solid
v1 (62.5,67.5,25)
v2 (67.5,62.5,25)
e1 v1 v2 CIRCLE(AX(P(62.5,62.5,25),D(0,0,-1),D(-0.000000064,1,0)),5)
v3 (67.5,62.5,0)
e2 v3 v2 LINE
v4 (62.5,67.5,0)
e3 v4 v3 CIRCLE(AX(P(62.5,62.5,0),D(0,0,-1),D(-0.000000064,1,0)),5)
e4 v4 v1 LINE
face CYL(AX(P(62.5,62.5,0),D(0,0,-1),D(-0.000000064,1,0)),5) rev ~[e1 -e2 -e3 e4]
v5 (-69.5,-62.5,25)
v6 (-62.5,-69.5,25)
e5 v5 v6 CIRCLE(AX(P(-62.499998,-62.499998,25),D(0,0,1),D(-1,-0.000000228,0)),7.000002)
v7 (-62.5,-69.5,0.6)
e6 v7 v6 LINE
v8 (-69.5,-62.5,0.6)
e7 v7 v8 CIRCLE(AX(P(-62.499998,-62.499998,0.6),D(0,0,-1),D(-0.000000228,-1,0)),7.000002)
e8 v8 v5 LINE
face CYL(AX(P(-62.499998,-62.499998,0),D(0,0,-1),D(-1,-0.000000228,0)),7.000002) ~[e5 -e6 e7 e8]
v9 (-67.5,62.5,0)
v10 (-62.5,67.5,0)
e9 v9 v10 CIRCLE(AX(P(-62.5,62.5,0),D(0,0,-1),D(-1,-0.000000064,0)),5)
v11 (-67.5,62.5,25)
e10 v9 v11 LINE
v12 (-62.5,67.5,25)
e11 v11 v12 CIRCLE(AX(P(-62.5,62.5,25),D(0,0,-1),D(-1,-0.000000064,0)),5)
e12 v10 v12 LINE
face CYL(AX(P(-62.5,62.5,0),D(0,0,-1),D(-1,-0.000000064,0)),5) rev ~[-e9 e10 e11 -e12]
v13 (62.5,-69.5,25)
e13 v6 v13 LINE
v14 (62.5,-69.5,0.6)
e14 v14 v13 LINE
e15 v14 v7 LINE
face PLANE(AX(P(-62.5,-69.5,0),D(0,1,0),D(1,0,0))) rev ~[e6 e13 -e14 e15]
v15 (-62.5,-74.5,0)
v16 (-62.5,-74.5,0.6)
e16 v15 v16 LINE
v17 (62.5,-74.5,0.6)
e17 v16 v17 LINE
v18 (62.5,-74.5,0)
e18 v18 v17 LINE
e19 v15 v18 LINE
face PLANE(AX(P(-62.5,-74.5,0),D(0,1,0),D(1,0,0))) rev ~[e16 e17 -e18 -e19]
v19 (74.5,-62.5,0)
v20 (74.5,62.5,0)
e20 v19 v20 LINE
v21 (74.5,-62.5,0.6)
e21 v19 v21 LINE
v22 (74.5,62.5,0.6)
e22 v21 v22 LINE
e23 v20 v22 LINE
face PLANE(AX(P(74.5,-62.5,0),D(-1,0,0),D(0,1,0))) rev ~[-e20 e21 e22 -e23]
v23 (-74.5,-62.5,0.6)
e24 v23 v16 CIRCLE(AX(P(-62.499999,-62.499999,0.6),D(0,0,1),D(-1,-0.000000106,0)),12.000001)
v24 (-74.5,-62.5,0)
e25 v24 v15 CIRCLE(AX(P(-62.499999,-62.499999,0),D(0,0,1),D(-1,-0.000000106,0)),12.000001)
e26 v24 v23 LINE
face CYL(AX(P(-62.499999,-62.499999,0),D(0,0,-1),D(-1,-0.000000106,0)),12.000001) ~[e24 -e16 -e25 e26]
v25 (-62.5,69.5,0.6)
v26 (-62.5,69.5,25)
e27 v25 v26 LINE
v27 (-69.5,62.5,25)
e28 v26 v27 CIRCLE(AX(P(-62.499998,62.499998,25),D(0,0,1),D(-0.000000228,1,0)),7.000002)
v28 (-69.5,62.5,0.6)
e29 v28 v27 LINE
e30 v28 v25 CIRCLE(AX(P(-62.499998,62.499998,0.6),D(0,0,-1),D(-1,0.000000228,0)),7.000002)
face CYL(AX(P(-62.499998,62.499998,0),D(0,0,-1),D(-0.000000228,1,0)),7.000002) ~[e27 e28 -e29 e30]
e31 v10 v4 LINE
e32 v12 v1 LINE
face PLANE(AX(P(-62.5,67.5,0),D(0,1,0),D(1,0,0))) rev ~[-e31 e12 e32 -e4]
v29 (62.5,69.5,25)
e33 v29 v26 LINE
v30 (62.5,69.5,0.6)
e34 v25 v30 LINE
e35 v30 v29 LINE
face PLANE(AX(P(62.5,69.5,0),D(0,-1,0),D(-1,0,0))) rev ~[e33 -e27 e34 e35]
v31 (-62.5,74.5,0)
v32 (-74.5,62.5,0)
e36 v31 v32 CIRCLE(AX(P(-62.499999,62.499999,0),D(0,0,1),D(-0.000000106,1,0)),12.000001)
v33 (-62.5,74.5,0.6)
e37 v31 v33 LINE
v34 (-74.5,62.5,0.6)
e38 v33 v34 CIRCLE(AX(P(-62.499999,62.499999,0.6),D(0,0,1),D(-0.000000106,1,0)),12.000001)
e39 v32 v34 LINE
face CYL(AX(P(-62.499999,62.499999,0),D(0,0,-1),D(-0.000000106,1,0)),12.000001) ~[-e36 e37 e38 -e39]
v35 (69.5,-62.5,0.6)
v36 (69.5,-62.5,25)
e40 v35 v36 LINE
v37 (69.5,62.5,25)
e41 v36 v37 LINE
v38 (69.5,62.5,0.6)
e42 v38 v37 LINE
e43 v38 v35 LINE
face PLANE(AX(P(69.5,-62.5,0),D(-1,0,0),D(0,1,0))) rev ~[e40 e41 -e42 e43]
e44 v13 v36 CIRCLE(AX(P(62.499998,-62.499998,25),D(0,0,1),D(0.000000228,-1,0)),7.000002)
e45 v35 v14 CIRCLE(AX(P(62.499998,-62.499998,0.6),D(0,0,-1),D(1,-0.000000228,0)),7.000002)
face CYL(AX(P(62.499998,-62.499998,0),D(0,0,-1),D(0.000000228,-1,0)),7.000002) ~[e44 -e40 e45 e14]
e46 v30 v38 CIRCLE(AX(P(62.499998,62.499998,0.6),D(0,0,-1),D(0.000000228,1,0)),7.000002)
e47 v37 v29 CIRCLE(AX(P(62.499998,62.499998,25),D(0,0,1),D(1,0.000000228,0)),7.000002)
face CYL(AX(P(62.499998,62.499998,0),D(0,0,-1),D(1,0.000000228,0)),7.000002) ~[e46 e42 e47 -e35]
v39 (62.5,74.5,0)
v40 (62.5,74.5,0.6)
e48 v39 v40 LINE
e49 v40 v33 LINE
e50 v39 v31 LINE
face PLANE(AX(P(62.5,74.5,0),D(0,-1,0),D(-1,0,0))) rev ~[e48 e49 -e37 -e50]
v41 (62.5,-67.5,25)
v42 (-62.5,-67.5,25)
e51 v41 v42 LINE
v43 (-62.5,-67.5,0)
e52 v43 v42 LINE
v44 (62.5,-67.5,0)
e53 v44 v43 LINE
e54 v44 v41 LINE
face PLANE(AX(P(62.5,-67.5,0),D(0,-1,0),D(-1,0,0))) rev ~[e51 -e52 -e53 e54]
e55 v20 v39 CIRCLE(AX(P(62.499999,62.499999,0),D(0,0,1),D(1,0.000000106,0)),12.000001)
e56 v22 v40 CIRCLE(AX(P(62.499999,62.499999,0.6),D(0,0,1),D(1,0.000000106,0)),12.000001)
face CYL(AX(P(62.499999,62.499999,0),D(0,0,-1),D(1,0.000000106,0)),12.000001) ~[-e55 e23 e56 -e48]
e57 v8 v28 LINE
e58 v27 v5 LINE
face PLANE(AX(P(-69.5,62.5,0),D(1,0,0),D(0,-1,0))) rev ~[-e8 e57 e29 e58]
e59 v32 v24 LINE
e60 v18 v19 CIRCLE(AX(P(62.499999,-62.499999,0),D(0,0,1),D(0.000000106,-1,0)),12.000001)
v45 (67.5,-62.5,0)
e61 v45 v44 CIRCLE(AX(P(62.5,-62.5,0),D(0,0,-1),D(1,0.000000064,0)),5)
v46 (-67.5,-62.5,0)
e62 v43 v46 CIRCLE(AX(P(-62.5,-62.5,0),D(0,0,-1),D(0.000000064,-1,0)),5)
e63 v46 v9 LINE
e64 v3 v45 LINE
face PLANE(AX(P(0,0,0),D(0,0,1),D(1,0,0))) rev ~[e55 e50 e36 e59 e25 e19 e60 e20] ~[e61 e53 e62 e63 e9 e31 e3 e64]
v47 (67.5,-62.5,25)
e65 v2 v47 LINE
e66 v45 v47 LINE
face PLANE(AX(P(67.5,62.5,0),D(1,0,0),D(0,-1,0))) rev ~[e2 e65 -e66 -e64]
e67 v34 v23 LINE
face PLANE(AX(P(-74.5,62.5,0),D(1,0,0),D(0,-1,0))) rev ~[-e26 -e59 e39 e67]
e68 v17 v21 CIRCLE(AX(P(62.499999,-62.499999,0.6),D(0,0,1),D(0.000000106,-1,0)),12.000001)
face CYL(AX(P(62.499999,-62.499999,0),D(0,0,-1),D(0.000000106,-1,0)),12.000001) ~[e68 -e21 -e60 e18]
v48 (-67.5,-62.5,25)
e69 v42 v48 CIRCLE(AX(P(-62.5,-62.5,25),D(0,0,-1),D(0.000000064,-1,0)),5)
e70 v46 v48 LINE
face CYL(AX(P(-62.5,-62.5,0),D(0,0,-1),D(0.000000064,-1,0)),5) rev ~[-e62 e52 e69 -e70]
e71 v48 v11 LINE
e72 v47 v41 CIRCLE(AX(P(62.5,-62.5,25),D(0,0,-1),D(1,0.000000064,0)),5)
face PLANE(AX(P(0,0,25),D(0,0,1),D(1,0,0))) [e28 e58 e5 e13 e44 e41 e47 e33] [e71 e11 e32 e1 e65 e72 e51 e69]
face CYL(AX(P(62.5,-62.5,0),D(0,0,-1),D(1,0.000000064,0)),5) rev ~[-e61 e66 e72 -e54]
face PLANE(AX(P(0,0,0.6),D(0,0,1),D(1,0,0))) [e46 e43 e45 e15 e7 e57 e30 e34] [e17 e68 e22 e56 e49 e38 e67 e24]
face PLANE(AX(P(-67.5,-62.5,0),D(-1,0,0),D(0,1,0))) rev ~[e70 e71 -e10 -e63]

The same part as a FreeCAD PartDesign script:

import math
import FreeCAD as App
import Part
import Sketcher

doc = App.newDocument("Part")
params = doc.addObject("Spreadsheet::Sheet", "Params")
for row, (alias, value) in enumerate([
    ("sketch1_radius", "7.000002 mm"),
    ("sketch1_radius2", "5 mm"),
    ("sketch1_width", "125 mm"),
    ("pad1_length", "25 mm"),
    ("sketch2_radius", "12.000001 mm"),
    ("sketch2_radius2", "7.000002 mm"),
    ("sketch2_width", "125 mm"),
    ("pad2_length", "0.6 mm"),
], start=1):
    params.set(f"A{row}", alias)
    params.set(f"B{row}", "=" + value)
    params.setAlias(f"B{row}", alias)

body = doc.addObject("PartDesign::Body", "Body")

# Sketch on XY plane
sketch1 = body.newObject("Sketcher::SketchObject", "Sketch")
sketch1.AttachmentSupport = (doc.getObject("XY_Plane"), [""])
sketch1.MapMode = "FlatFace"
sketch1.addGeometry(Part.LineSegment(App.Vector(69.5, -62.5, 0), App.Vector(69.5, 62.5, 0)), False)
sketch1.addGeometry(Part.ArcOfCircle(Part.Circle(App.Vector(62.5, 62.5, 0), App.Vector(0, 0, 1), 7), math.radians(0), math.radians(90)), False)
sketch1.addGeometry(Part.LineSegment(App.Vector(62.5, 69.5, 0), App.Vector(-62.5, 69.5, 0)), False)
sketch1.addGeometry(Part.ArcOfCircle(Part.Circle(App.Vector(-62.5, 62.5, 0), App.Vector(0, 0, 1), 7), math.radians(90), math.radians(180)), False)
sketch1.addGeometry(Part.LineSegment(App.Vector(-69.5, 62.5, 0), App.Vector(-69.5, -62.5, 0)), False)
sketch1.addGeometry(Part.ArcOfCircle(Part.Circle(App.Vector(-62.5, -62.5, 0), App.Vector(0, 0, 1), 7), math.radians(-180), math.radians(-90)), False)
sketch1.addGeometry(Part.LineSegment(App.Vector(-62.5, -69.5, 0), App.Vector(62.5, -69.5, 0)), False)
sketch1.addGeometry(Part.ArcOfCircle(Part.Circle(App.Vector(62.5, -62.5, 0), App.Vector(0, 0, 1), 7), math.radians(-90), math.radians(0)), False)
sketch1.addGeometry(Part.ArcOfCircle(Part.Circle(App.Vector(-62.5, 62.5, 0), App.Vector(0, 0, 1), 5), math.radians(90), math.radians(180)), False)
sketch1.addGeometry(Part.LineSegment(App.Vector(-62.5, 67.5, 0), App.Vector(62.5, 67.5, 0)), False)
sketch1.addGeometry(Part.ArcOfCircle(Part.Circle(App.Vector(62.5, 62.5, 0), App.Vector(0, 0, 1), 5), math.radians(0), math.radians(90)), False)
sketch1.addGeometry(Part.LineSegment(App.Vector(67.5, 62.5, 0), App.Vector(67.5, -62.5, 0)), False)
sketch1.addGeometry(Part.ArcOfCircle(Part.Circle(App.Vector(62.5, -62.5, 0), App.Vector(0, 0, 1), 5), math.radians(-90), math.radians(0)), False)
sketch1.addGeometry(Part.LineSegment(App.Vector(62.5, -67.5, 0), App.Vector(-62.5, -67.5, 0)), False)
sketch1.addGeometry(Part.ArcOfCircle(Part.Circle(App.Vector(-62.5, -62.5, 0), App.Vector(0, 0, 1), 5), math.radians(180), math.radians(270)), False)
sketch1.addGeometry(Part.LineSegment(App.Vector(-67.5, -62.5, 0), App.Vector(-67.5, 62.5, 0)), False)
sketch1.addConstraint(Sketcher.Constraint("Tangent", 0, 2, 1, 1))
sketch1.addConstraint(Sketcher.Constraint("Tangent", 1, 2, 2, 1))
sketch1.addConstraint(Sketcher.Constraint("Tangent", 2, 2, 3, 1))
sketch1.addConstraint(Sketcher.Constraint("Tangent", 3, 2, 4, 1))
sketch1.addConstraint(Sketcher.Constraint("Tangent", 4, 2, 5, 1))
sketch1.addConstraint(Sketcher.Constraint("Tangent", 5, 2, 6, 1))
sketch1.addConstraint(Sketcher.Constraint("Tangent", 6, 2, 7, 1))
sketch1.addConstraint(Sketcher.Constraint("Tangent", 7, 2, 0, 1))
sketch1.addConstraint(Sketcher.Constraint("Tangent", 8, 1, 9, 1))
sketch1.addConstraint(Sketcher.Constraint("Tangent", 9, 2, 10, 2))
sketch1.addConstraint(Sketcher.Constraint("Tangent", 10, 1, 11, 1))
sketch1.addConstraint(Sketcher.Constraint("Tangent", 11, 2, 12, 2))
sketch1.addConstraint(Sketcher.Constraint("Tangent", 12, 1, 13, 1))
sketch1.addConstraint(Sketcher.Constraint("Tangent", 13, 2, 14, 2))
sketch1.addConstraint(Sketcher.Constraint("Tangent", 14, 1, 15, 1))
sketch1.addConstraint(Sketcher.Constraint("Tangent", 15, 2, 8, 2))
sketch1.addConstraint(Sketcher.Constraint("Vertical", 0))
sketch1.addConstraint(Sketcher.Constraint("Horizontal", 2))
sketch1.addConstraint(Sketcher.Constraint("Vertical", 4))
sketch1.addConstraint(Sketcher.Constraint("Horizontal", 6))
sketch1.addConstraint(Sketcher.Constraint("Horizontal", 9))
sketch1.addConstraint(Sketcher.Constraint("Vertical", 11))
sketch1.addConstraint(Sketcher.Constraint("Horizontal", 13))
sketch1.addConstraint(Sketcher.Constraint("Vertical", 15))
sketch1.addConstraint(Sketcher.Constraint("Coincident", 8, 3, 3, 3))
sketch1.addConstraint(Sketcher.Constraint("Coincident", 10, 3, 1, 3))
sketch1.addConstraint(Sketcher.Constraint("Coincident", 12, 3, 7, 3))
sketch1.addConstraint(Sketcher.Constraint("Equal", 1, 3))
sketch1.addConstraint(Sketcher.Constraint("Equal", 3, 5))
sketch1.addConstraint(Sketcher.Constraint("Equal", 5, 7))
sketch1.addConstraint(Sketcher.Constraint("Equal", 12, 14))
sketch1.addConstraint(Sketcher.Constraint("Symmetric", 1, 3, 5, 3, -1, 1))
sketch1.addConstraint(Sketcher.Constraint("Equal", 13, 0))
sketch1.addConstraint(Sketcher.Constraint("Radius", 1, 7.000002))
sketch1.addConstraint(Sketcher.Constraint("Radius", 8, 5.0))
sketch1.addConstraint(Sketcher.Constraint("DistanceX", 2, 2, 2, 1, 125.0))
sketch1.setExpression("Constraints[33]", "Params.sketch1_radius")
sketch1.setExpression("Constraints[34]", "Params.sketch1_radius2")
sketch1.setExpression("Constraints[35]", "Params.sketch1_width")
pad1 = body.newObject("PartDesign::Pad", "Pad")
pad1.Profile = sketch1
pad1.setExpression("Length", "Params.pad1_length")

# Sketch on XY plane
sketch2 = body.newObject("Sketcher::SketchObject", "Sketch001")
sketch2.AttachmentSupport = (doc.getObject("XY_Plane"), [""])
sketch2.MapMode = "FlatFace"
sketch2.addGeometry(Part.LineSegment(App.Vector(74, -62, 0), App.Vector(74, 62, 0)), False)
sketch2.addGeometry(Part.ArcOfCircle(Part.Circle(App.Vector(62, 62, 0), App.Vector(0, 0, 1), 12), math.radians(0), math.radians(90)), False)
sketch2.addGeometry(Part.LineSegment(App.Vector(62, 74, 0), App.Vector(-62, 74, 0)), False)
sketch2.addGeometry(Part.ArcOfCircle(Part.Circle(App.Vector(-62, 62, 0), App.Vector(0, 0, 1), 12), math.radians(90), math.radians(180)), False)
sketch2.addGeometry(Part.LineSegment(App.Vector(-74, 62, 0), App.Vector(-74, -62, 0)), False)
sketch2.addGeometry(Part.ArcOfCircle(Part.Circle(App.Vector(-62, -62, 0), App.Vector(0, 0, 1), 12), math.radians(-180), math.radians(-90)), False)
sketch2.addGeometry(Part.LineSegment(App.Vector(-62, -74, 0), App.Vector(62, -74, 0)), False)
sketch2.addGeometry(Part.ArcOfCircle(Part.Circle(App.Vector(62, -62, 0), App.Vector(0, 0, 1), 12), math.radians(-90), math.radians(0)), False)
sketch2.addGeometry(Part.LineSegment(App.Vector(-62, 70, 0), App.Vector(62, 70, 0)), False)
sketch2.addGeometry(Part.ArcOfCircle(Part.Circle(App.Vector(62, 62, 0), App.Vector(0, 0, 1), 7), math.radians(0), math.radians(90)), False)
sketch2.addGeometry(Part.LineSegment(App.Vector(70, 62, 0), App.Vector(70, -62, 0)), False)
sketch2.addGeometry(Part.ArcOfCircle(Part.Circle(App.Vector(62, -62, 0), App.Vector(0, 0, 1), 7), math.radians(-90), math.radians(0)), False)
sketch2.addGeometry(Part.LineSegment(App.Vector(62, -70, 0), App.Vector(-62, -70, 0)), False)
sketch2.addGeometry(Part.ArcOfCircle(Part.Circle(App.Vector(-62, -62, 0), App.Vector(0, 0, 1), 7), math.radians(-180), math.radians(-90)), False)
sketch2.addGeometry(Part.LineSegment(App.Vector(-70, -62, 0), App.Vector(-70, 62, 0)), False)
sketch2.addGeometry(Part.ArcOfCircle(Part.Circle(App.Vector(-62, 62, 0), App.Vector(0, 0, 1), 7), math.radians(90), math.radians(180)), False)
sketch2.addConstraint(Sketcher.Constraint("Tangent", 0, 2, 1, 1))
sketch2.addConstraint(Sketcher.Constraint("Tangent", 1, 2, 2, 1))
sketch2.addConstraint(Sketcher.Constraint("Tangent", 2, 2, 3, 1))
sketch2.addConstraint(Sketcher.Constraint("Tangent", 3, 2, 4, 1))
sketch2.addConstraint(Sketcher.Constraint("Tangent", 4, 2, 5, 1))
sketch2.addConstraint(Sketcher.Constraint("Tangent", 5, 2, 6, 1))
sketch2.addConstraint(Sketcher.Constraint("Tangent", 6, 2, 7, 1))
sketch2.addConstraint(Sketcher.Constraint("Tangent", 7, 2, 0, 1))
sketch2.addConstraint(Sketcher.Constraint("Tangent", 8, 2, 9, 2))
sketch2.addConstraint(Sketcher.Constraint("Tangent", 9, 1, 10, 1))
sketch2.addConstraint(Sketcher.Constraint("Tangent", 10, 2, 11, 2))
sketch2.addConstraint(Sketcher.Constraint("Tangent", 11, 1, 12, 1))
sketch2.addConstraint(Sketcher.Constraint("Tangent", 12, 2, 13, 2))
sketch2.addConstraint(Sketcher.Constraint("Tangent", 13, 1, 14, 1))
sketch2.addConstraint(Sketcher.Constraint("Tangent", 14, 2, 15, 2))
sketch2.addConstraint(Sketcher.Constraint("Tangent", 15, 1, 8, 1))
sketch2.addConstraint(Sketcher.Constraint("Vertical", 0))
sketch2.addConstraint(Sketcher.Constraint("Horizontal", 2))
sketch2.addConstraint(Sketcher.Constraint("Vertical", 4))
sketch2.addConstraint(Sketcher.Constraint("Horizontal", 6))
sketch2.addConstraint(Sketcher.Constraint("Horizontal", 8))
sketch2.addConstraint(Sketcher.Constraint("Vertical", 10))
sketch2.addConstraint(Sketcher.Constraint("Horizontal", 12))
sketch2.addConstraint(Sketcher.Constraint("Vertical", 14))
sketch2.addConstraint(Sketcher.Constraint("Coincident", 9, 3, 1, 3))
sketch2.addConstraint(Sketcher.Constraint("Coincident", 11, 3, 7, 3))
sketch2.addConstraint(Sketcher.Constraint("Coincident", 13, 3, 5, 3))
sketch2.addConstraint(Sketcher.Constraint("Equal", 1, 3))
sketch2.addConstraint(Sketcher.Constraint("Equal", 3, 5))
sketch2.addConstraint(Sketcher.Constraint("Equal", 5, 7))
sketch2.addConstraint(Sketcher.Constraint("Equal", 13, 15))
sketch2.addConstraint(Sketcher.Constraint("Symmetric", 1, 3, 5, 3, -1, 1))
sketch2.addConstraint(Sketcher.Constraint("Equal", 12, 0))
sketch2.addConstraint(Sketcher.Constraint("Radius", 1, 12.000001))
sketch2.addConstraint(Sketcher.Constraint("Radius", 9, 7.000002))
sketch2.addConstraint(Sketcher.Constraint("DistanceX", 2, 2, 2, 1, 125.0))
sketch2.setExpression("Constraints[33]", "Params.sketch2_radius")
sketch2.setExpression("Constraints[34]", "Params.sketch2_radius2")
sketch2.setExpression("Constraints[35]", "Params.sketch2_width")
pad2 = body.newObject("PartDesign::Pad", "Pad001")
pad2.Profile = sketch2
pad2.setExpression("Length", "Params.pad2_length")

doc.recompute()
